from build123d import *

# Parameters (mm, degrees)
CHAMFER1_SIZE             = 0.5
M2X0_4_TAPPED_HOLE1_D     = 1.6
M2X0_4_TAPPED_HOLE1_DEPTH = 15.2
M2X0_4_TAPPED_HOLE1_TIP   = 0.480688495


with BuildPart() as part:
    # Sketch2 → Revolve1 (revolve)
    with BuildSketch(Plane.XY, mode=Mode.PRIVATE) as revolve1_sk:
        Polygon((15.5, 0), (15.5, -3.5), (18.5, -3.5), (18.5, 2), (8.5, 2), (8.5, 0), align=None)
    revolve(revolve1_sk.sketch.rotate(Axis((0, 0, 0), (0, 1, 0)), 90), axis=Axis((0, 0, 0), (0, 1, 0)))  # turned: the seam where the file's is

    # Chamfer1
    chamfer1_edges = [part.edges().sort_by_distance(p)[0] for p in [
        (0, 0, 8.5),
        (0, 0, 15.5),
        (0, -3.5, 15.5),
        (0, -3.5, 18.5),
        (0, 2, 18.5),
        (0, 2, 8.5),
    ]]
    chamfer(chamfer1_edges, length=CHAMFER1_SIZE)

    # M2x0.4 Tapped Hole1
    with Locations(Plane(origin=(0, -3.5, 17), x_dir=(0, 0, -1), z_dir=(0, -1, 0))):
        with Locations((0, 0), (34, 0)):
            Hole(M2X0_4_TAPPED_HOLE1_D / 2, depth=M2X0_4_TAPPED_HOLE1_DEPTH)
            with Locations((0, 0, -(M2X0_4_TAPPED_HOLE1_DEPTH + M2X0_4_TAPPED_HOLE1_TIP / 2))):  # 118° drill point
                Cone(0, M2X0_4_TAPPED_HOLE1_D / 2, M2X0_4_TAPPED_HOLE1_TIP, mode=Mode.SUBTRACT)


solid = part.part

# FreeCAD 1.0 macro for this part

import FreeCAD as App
import Part
import Sketcher

V = App.Vector


def edges_at(feature, points):
    """Names of the edges that pass closest to the given points."""
    edges = feature.Shape.Edges
    near = lambda p: min(range(len(edges)), key=lambda i: edges[i].distToShape(Part.Vertex(*p))[0])
    return sorted({f"Edge{near(p) + 1}" for p in points})

doc = App.newDocument("Part")
body = doc.addObject("PartDesign::Body", "Body")

sketch1 = body.newObject("Sketcher::SketchObject", "Sketch")
sketch1.AttachmentSupport = (doc.getObject("XY_Plane"), [""])
sketch1.MapMode = "FlatFace"
sketch1.addGeometry([
    Part.LineSegment(V(15.5, 0, 0), V(15.5, -3.5, 0)),
    Part.LineSegment(V(15.5, -3.5, 0), V(18.5, -3.5, 0)),
    Part.LineSegment(V(18.5, -3.5, 0), V(18.5, 2, 0)),
    Part.LineSegment(V(18.5, 2, 0), V(8.5, 2, 0)),
    Part.LineSegment(V(8.5, 2, 0), V(8.5, 0, 0)),
    Part.LineSegment(V(8.5, 0, 0), V(15.5, 0, 0)),
], False)
sketch1.addConstraint([
    Sketcher.Constraint("Coincident", 0, 2, 1, 1),
    Sketcher.Constraint("Coincident", 1, 2, 2, 1),
    Sketcher.Constraint("Coincident", 2, 2, 3, 1),
    Sketcher.Constraint("Coincident", 3, 2, 4, 1),
    Sketcher.Constraint("Coincident", 4, 2, 5, 1),
    Sketcher.Constraint("Coincident", 5, 2, 0, 1),
    Sketcher.Constraint("Vertical", 0),
    Sketcher.Constraint("Horizontal", 1),
    Sketcher.Constraint("Vertical", 2),
    Sketcher.Constraint("Horizontal", 3),
    Sketcher.Constraint("Vertical", 4),
    Sketcher.Constraint("Horizontal", 5),
    Sketcher.Constraint("PointOnObject", 4, 2, -1),
    Sketcher.Constraint("DistanceX", 1, 1, 1, 2, 3.0),
    Sketcher.Constraint("DistanceX", 3, 2, 3, 1, 10.0),
    Sketcher.Constraint("DistanceY", 4, 2, 4, 1, 2.0),
    Sketcher.Constraint("DistanceY", 0, 2, 0, 1, 3.5),
    Sketcher.Constraint("DistanceX", -1, 1, 0, 2, 15.5),
])
revolution = body.newObject("PartDesign::Revolution", "Revolution")
revolution.Profile = sketch1
revolution.ReferenceAxis = (sketch1, ["V_Axis"])
revolution.Angle = 360
doc.recompute()

chamfer = body.newObject("PartDesign::Chamfer", "Chamfer")
chamfer.Base = (revolution, edges_at(revolution, [
    (0, 0, 8.5),
    (0, 0, 15.5),
    (0, -3.5, 15.5),
    (0, -3.5, 18.5),
    (0, 2, 18.5),
    (0, 2, 8.5),
]))
chamfer.Size = 0.5

sketch2 = body.newObject("Sketcher::SketchObject", "Sketch001")
sketch2.AttachmentSupport = (doc.getObject("XZ_Plane"), [""])
sketch2.MapMode = "FlatFace"
sketch2.AttachmentOffset = App.Placement(V(0, 0, 3.5), App.Rotation())
sketch2.addGeometry([
    Part.Circle(V(0, 17, 0), V(0, 0, 1), 0.8),
    Part.Circle(V(0, -17, 0), V(0, 0, 1), 0.8),
], False)
sketch2.addConstraint([
    Sketcher.Constraint("Equal", 0, 1),
    Sketcher.Constraint("Symmetric", 0, 3, 1, 3, -1, 1),
    Sketcher.Constraint("PointOnObject", 0, 3, -2),
    Sketcher.Constraint("Diameter", 0, 1.6),
    Sketcher.Constraint("DistanceY", -1, 1, 0, 3, 17.0),
])
doc.recompute()
hole = body.newObject("PartDesign::Hole", "Hole")
hole.Profile = sketch2
hole.ThreadType = "None"
hole.Diameter = 1.6
hole.DepthType = "Dimension"
hole.Depth = 15.2
hole.DrillPoint = "Angled"
hole.DrillPointAngle = 118

doc.recompute()
